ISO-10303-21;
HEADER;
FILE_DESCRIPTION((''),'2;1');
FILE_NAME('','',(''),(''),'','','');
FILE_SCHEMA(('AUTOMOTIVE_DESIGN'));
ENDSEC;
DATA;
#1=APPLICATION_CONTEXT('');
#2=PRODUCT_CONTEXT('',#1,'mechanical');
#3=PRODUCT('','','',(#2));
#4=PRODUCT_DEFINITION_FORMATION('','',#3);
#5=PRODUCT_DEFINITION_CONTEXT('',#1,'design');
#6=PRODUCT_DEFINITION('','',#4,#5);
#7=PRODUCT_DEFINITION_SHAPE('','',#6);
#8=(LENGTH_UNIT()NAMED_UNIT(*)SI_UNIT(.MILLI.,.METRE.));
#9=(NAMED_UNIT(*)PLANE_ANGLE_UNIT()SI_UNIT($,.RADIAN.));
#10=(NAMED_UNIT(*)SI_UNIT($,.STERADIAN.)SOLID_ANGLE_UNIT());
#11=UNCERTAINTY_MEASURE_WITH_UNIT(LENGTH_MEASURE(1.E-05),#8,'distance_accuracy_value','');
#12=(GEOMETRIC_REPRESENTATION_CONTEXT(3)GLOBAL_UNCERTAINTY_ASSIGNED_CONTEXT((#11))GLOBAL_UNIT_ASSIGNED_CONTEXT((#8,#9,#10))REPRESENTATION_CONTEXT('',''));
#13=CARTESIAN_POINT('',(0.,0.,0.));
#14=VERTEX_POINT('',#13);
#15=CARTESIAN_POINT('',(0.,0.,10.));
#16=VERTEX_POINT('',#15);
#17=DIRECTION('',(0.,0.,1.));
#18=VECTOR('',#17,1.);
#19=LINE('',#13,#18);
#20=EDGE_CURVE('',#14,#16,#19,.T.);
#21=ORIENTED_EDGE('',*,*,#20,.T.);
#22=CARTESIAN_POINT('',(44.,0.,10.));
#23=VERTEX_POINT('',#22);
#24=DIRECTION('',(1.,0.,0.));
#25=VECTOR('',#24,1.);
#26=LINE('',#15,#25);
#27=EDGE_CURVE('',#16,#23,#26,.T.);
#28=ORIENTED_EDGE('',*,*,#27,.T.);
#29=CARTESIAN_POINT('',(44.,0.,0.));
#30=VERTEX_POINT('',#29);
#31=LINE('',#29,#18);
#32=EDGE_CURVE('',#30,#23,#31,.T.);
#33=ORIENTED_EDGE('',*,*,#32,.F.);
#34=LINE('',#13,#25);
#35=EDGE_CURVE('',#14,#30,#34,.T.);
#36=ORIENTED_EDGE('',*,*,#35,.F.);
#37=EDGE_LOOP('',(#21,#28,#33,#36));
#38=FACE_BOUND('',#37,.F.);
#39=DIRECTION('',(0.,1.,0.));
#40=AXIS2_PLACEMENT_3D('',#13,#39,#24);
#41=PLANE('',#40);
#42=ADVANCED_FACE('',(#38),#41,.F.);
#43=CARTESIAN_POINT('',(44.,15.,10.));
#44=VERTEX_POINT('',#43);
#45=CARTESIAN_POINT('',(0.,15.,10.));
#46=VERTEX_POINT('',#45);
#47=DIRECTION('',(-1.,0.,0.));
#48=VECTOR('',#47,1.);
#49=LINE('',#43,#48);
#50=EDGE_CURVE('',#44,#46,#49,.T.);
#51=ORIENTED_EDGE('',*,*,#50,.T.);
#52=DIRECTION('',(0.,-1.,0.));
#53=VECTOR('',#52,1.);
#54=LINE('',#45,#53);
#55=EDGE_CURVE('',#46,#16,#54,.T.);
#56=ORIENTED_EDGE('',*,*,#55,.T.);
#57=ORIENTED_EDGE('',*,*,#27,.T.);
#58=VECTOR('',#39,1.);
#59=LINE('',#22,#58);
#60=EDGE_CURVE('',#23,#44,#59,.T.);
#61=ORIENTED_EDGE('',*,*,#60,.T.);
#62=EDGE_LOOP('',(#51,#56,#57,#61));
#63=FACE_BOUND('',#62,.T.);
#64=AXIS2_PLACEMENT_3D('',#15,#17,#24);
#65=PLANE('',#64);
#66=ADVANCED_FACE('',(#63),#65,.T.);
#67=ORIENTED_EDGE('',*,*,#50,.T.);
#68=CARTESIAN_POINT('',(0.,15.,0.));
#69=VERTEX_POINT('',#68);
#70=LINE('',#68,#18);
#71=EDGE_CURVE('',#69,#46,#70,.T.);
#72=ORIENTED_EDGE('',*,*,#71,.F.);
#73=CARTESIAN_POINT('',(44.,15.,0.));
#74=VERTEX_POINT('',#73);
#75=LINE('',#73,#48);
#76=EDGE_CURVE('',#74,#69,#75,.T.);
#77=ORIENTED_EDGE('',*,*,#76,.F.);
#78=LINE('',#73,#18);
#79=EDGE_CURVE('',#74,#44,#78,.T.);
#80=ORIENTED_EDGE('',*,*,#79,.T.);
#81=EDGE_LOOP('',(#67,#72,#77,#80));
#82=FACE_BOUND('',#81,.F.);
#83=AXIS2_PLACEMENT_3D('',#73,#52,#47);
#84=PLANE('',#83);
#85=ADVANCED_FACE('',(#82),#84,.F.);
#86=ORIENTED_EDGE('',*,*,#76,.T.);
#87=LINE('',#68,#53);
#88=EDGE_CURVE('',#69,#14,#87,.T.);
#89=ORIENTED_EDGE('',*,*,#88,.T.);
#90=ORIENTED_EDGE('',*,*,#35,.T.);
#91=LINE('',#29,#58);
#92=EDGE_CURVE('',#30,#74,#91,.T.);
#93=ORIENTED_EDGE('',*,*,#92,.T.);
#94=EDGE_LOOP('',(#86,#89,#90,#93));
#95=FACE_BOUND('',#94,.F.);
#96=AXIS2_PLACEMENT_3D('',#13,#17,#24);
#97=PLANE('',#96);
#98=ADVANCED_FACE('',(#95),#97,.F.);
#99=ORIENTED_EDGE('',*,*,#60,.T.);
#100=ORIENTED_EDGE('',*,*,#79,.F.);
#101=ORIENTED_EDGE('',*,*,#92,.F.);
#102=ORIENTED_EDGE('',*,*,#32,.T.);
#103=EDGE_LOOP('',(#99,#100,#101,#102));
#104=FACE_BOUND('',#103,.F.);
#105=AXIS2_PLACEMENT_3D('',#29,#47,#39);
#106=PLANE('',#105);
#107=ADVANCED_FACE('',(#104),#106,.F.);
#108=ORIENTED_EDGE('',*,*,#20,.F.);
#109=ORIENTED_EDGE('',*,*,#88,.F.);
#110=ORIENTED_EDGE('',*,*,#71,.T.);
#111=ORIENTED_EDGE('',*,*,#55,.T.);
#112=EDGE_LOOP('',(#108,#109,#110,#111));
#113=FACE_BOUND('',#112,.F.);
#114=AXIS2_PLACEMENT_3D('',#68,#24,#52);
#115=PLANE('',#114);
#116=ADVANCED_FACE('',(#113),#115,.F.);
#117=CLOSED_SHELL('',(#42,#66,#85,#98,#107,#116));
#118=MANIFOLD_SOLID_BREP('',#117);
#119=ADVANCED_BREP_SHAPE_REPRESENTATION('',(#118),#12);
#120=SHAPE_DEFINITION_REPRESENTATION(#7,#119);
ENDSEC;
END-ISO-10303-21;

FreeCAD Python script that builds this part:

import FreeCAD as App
import Part
import Sketcher
from FreeCAD import Vector

doc = App.newDocument("Part")
body = doc.addObject("PartDesign::Body", "Body")

# Sketch on XY plane
sketch1 = doc.addObject("Sketcher::SketchObject", "Sketch")
body.addObject(sketch1)
sketch1.AttachmentSupport = (doc.XY_Plane, [""])
sketch1.MapMode = "FlatFace"
sketch1.addGeometry([
    Part.LineSegment(Vector(0, 15, 0), Vector(0, 0, 0)),
    Part.LineSegment(Vector(0, 0, 0), Vector(44, 0, 0)),
    Part.LineSegment(Vector(44, 0, 0), Vector(44, 15, 0)),
    Part.LineSegment(Vector(44, 15, 0), Vector(0, 15, 0)),
], False)
sketch1.addConstraint([
    Sketcher.Constraint("Coincident", 0, 2, 1, 1),
    Sketcher.Constraint("Coincident", 1, 2, 2, 1),
    Sketcher.Constraint("Coincident", 2, 2, 3, 1),
    Sketcher.Constraint("Coincident", 3, 2, 0, 1),
    Sketcher.Constraint("Vertical", 0),
    Sketcher.Constraint("Horizontal", 1),
    Sketcher.Constraint("Vertical", 2),
    Sketcher.Constraint("Horizontal", 3),
    Sketcher.Constraint("Coincident", 0, 2, -1, 1),
    Sketcher.Constraint("DistanceX", 1, 1, 1, 2, 44.0),
    Sketcher.Constraint("DistanceY", 0, 2, 0, 1, 15.0),
])
pad1 = doc.addObject("PartDesign::Pad", "Pad")
body.addObject(pad1)
pad1.Profile = sketch1
pad1.Length = 10

doc.recompute()
